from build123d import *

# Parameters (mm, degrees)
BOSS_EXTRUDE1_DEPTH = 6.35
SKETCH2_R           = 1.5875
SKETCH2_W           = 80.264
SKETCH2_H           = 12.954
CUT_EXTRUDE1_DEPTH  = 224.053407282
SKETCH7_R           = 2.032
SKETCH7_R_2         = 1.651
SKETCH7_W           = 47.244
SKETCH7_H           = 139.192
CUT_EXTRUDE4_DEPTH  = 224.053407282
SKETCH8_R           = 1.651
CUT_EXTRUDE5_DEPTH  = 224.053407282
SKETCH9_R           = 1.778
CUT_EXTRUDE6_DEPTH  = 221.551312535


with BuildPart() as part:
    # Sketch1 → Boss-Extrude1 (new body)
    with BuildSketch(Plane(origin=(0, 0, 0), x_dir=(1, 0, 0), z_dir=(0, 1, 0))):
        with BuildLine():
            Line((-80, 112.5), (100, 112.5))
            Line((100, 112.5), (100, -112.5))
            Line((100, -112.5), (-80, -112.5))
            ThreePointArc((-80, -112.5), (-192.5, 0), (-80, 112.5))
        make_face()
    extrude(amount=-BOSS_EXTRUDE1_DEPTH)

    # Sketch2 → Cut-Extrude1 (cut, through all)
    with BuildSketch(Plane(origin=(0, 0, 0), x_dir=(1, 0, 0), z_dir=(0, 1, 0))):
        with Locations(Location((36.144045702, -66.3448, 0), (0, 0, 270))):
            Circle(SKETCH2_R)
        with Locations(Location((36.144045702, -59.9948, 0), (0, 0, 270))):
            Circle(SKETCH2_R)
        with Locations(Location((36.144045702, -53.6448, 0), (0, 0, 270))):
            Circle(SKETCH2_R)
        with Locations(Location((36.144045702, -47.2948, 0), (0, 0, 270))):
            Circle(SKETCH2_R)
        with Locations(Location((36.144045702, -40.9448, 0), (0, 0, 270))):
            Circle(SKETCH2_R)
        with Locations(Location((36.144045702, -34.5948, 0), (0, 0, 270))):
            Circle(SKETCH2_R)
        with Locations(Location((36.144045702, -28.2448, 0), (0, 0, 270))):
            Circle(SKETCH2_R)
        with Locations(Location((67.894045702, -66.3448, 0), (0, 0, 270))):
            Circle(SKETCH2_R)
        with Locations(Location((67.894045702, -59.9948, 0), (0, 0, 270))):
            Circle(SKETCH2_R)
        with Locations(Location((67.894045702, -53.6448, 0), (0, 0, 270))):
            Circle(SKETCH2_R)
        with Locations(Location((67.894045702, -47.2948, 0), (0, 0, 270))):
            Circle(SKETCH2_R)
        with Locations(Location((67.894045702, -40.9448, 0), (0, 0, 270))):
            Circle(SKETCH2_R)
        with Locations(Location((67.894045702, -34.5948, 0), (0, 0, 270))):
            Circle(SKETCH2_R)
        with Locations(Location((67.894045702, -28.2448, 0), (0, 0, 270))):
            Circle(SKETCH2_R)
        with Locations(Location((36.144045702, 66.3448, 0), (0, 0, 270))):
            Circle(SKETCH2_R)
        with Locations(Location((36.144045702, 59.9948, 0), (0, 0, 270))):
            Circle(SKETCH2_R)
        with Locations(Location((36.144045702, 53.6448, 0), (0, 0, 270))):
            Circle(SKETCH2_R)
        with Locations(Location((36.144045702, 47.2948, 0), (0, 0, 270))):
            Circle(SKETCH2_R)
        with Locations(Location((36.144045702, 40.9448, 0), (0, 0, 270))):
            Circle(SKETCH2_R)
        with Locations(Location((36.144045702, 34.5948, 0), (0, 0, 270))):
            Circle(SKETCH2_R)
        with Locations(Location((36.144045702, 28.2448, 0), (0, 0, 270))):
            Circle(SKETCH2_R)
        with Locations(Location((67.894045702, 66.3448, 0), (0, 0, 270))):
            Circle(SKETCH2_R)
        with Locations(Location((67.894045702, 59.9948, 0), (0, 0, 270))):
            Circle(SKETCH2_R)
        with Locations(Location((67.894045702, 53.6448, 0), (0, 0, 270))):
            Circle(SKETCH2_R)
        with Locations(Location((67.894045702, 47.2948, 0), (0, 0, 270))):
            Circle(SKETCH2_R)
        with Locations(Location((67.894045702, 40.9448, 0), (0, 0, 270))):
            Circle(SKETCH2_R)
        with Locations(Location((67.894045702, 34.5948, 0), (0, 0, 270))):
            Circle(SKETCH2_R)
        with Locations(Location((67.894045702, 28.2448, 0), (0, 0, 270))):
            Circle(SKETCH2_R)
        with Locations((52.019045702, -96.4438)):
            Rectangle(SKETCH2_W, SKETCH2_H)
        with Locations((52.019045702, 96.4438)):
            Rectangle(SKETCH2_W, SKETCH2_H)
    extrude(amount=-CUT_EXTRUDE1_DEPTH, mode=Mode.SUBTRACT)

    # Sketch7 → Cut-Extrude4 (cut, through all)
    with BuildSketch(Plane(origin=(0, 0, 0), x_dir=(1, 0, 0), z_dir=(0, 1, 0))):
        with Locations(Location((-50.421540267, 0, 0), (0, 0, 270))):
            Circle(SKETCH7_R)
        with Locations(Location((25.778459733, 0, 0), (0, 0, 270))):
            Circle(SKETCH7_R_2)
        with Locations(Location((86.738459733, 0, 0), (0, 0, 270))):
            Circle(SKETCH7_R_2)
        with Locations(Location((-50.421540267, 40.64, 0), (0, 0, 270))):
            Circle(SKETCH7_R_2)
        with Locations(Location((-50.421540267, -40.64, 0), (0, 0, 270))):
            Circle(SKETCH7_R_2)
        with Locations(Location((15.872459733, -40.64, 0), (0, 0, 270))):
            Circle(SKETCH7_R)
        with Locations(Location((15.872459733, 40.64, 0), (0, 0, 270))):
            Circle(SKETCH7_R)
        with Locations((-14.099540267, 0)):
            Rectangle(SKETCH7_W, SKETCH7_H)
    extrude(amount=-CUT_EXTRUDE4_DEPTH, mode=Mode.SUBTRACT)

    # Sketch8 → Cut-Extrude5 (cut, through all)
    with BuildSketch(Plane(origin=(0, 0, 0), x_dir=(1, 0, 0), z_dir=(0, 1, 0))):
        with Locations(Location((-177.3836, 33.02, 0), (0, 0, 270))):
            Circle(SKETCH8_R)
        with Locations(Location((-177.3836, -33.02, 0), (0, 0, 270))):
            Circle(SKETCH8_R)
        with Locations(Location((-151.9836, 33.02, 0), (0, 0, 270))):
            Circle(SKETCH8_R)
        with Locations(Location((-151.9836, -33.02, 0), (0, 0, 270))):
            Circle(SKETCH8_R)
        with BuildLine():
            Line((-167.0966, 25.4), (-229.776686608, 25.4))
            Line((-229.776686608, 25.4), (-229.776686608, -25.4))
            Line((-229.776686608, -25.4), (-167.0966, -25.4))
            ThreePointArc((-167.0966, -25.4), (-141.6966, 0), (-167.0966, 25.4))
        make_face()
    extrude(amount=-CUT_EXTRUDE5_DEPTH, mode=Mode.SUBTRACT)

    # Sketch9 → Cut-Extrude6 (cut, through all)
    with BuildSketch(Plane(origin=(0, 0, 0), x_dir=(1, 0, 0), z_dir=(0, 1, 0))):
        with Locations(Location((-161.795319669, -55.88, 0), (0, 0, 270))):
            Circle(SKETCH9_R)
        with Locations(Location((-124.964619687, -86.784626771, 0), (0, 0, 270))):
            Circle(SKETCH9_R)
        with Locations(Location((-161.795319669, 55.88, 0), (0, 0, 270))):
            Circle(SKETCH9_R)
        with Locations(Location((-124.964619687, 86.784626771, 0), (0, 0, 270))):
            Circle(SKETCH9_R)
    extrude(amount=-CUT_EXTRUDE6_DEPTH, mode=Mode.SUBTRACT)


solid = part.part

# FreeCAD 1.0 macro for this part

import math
import FreeCAD as App
import Part
import Sketcher
from FreeCAD import Vector
Q = App.Units.Quantity

doc = App.newDocument("Part")
body = doc.addObject("PartDesign::Body", "Body")

# Sketch on XZ plane
sketch1 = body.newObject("Sketcher::SketchObject", "Sketch")
sketch1.AttachmentSupport = (doc.getObject("XZ_Plane"), [""])
sketch1.MapMode = "FlatFace"
sketch1.addGeometry(Part.LineSegment(Vector(100, -112.5, 0), Vector(-80, -112.5, 0)), False)
sketch1.addGeometry(Part.ArcOfCircle(Part.Circle(Vector(-80, 0, 0), Vector(0, 0, 1), 112.5), math.radians(90), math.radians(270)), False)
sketch1.addGeometry(Part.LineSegment(Vector(-80, 112.5, 0), Vector(100, 112.5, 0)), False)
sketch1.addGeometry(Part.LineSegment(Vector(100, 112.5, 0), Vector(100, -112.5, 0)), False)
sketch1.addConstraint(Sketcher.Constraint("Tangent", 0, 2, 1, 2))
sketch1.addConstraint(Sketcher.Constraint("Tangent", 1, 1, 2, 1))
sketch1.addConstraint(Sketcher.Constraint("Coincident", 2, 2, 3, 1))
sketch1.addConstraint(Sketcher.Constraint("Coincident", 3, 2, 0, 1))
sketch1.addConstraint(Sketcher.Constraint("Horizontal", 0))
sketch1.addConstraint(Sketcher.Constraint("Horizontal", 2))
sketch1.addConstraint(Sketcher.Constraint("Vertical", 3))
sketch1.addConstraint(Sketcher.Constraint("PointOnObject", 1, 3, -1))
sketch1.addConstraint(Sketcher.Constraint("Radius", 1, 112.5))
sketch1.addConstraint(Sketcher.Constraint("DistanceX", 0, 2, 0, 1, 180.0))
sketch1.addConstraint(Sketcher.Constraint("DistanceX", 1, 3, -1, 1, 80.0))
pad1 = body.newObject("PartDesign::Pad", "Pad")
pad1.Profile = sketch1
pad1.Length = Q("0.25 in")

# Sketch on XZ plane
sketch2 = body.newObject("Sketcher::SketchObject", "Sketch001")
sketch2.AttachmentSupport = (doc.getObject("XZ_Plane"), [""])
sketch2.MapMode = "FlatFace"
sketch2.addGeometry(Part.Circle(Vector(36.144046, 66.3448, 0), Vector(0, 0, 1), 1.5875), False)
sketch2.addGeometry(Part.Circle(Vector(36.144046, 59.9948, 0), Vector(0, 0, 1), 1.5875), False)
sketch2.addGeometry(Part.Circle(Vector(36.144046, 53.6448, 0), Vector(0, 0, 1), 1.5875), False)
sketch2.addGeometry(Part.Circle(Vector(36.144046, 47.2948, 0), Vector(0, 0, 1), 1.5875), False)
sketch2.addGeometry(Part.Circle(Vector(36.144046, 40.9448, 0), Vector(0, 0, 1), 1.5875), False)
sketch2.addGeometry(Part.Circle(Vector(36.144046, 34.5948, 0), Vector(0, 0, 1), 1.5875), False)
sketch2.addGeometry(Part.Circle(Vector(36.144046, 28.2448, 0), Vector(0, 0, 1), 1.5875), False)
sketch2.addGeometry(Part.Circle(Vector(67.894046, 66.3448, 0), Vector(0, 0, 1), 1.5875), False)
sketch2.addGeometry(Part.Circle(Vector(67.894046, 59.9948, 0), Vector(0, 0, 1), 1.5875), False)
sketch2.addGeometry(Part.Circle(Vector(67.894046, 53.6448, 0), Vector(0, 0, 1), 1.5875), False)
sketch2.addGeometry(Part.Circle(Vector(67.894046, 47.2948, 0), Vector(0, 0, 1), 1.5875), False)
sketch2.addGeometry(Part.Circle(Vector(67.894046, 40.9448, 0), Vector(0, 0, 1), 1.5875), False)
sketch2.addGeometry(Part.Circle(Vector(67.894046, 34.5948, 0), Vector(0, 0, 1), 1.5875), False)
sketch2.addGeometry(Part.Circle(Vector(67.894046, 28.2448, 0), Vector(0, 0, 1), 1.5875), False)
sketch2.addGeometry(Part.Circle(Vector(36.144046, -66.3448, 0), Vector(0, 0, 1), 1.5875), False)
sketch2.addGeometry(Part.Circle(Vector(36.144046, -59.9948, 0), Vector(0, 0, 1), 1.5875), False)
sketch2.addGeometry(Part.Circle(Vector(36.144046, -53.6448, 0), Vector(0, 0, 1), 1.5875), False)
sketch2.addGeometry(Part.Circle(Vector(36.144046, -47.2948, 0), Vector(0, 0, 1), 1.5875), False)
sketch2.addGeometry(Part.Circle(Vector(36.144046, -40.9448, 0), Vector(0, 0, 1), 1.5875), False)
sketch2.addGeometry(Part.Circle(Vector(36.144046, -34.5948, 0), Vector(0, 0, 1), 1.5875), False)
sketch2.addGeometry(Part.Circle(Vector(36.144046, -28.2448, 0), Vector(0, 0, 1), 1.5875), False)
sketch2.addGeometry(Part.Circle(Vector(67.894046, -66.3448, 0), Vector(0, 0, 1), 1.5875), False)
sketch2.addGeometry(Part.Circle(Vector(67.894046, -59.9948, 0), Vector(0, 0, 1), 1.5875), False)
sketch2.addGeometry(Part.Circle(Vector(67.894046, -53.6448, 0), Vector(0, 0, 1), 1.5875), False)
sketch2.addGeometry(Part.Circle(Vector(67.894046, -47.2948, 0), Vector(0, 0, 1), 1.5875), False)
sketch2.addGeometry(Part.Circle(Vector(67.894046, -40.9448, 0), Vector(0, 0, 1), 1.5875), False)
sketch2.addGeometry(Part.Circle(Vector(67.894046, -34.5948, 0), Vector(0, 0, 1), 1.5875), False)
sketch2.addGeometry(Part.Circle(Vector(67.894046, -28.2448, 0), Vector(0, 0, 1), 1.5875), False)
sketch2.addGeometry(Part.LineSegment(Vector(11.887046, 89.9668, 0), Vector(11.887046, 102.9208, 0)), False)
sketch2.addGeometry(Part.LineSegment(Vector(11.887046, 102.9208, 0), Vector(92.151046, 102.9208, 0)), False)
sketch2.addGeometry(Part.LineSegment(Vector(92.151046, 102.9208, 0), Vector(92.151046, 89.9668, 0)), False)
sketch2.addGeometry(Part.LineSegment(Vector(92.151046, 89.9668, 0), Vector(11.887046, 89.9668, 0)), False)
sketch2.addGeometry(Part.LineSegment(Vector(11.887046, -102.9208, 0), Vector(11.887046, -89.9668, 0)), False)
sketch2.addGeometry(Part.LineSegment(Vector(11.887046, -89.9668, 0), Vector(92.151046, -89.9668, 0)), False)
sketch2.addGeometry(Part.LineSegment(Vector(92.151046, -89.9668, 0), Vector(92.151046, -102.9208, 0)), False)
sketch2.addGeometry(Part.LineSegment(Vector(92.151046, -102.9208, 0), Vector(11.887046, -102.9208, 0)), False)
sketch2.addConstraint(Sketcher.Constraint("Coincident", 28, 2, 29, 1))
sketch2.addConstraint(Sketcher.Constraint("Coincident", 29, 2, 30, 1))
sketch2.addConstraint(Sketcher.Constraint("Coincident", 30, 2, 31, 1))
sketch2.addConstraint(Sketcher.Constraint("Coincident", 31, 2, 28, 1))
sketch2.addConstraint(Sketcher.Constraint("Coincident", 32, 2, 33, 1))
sketch2.addConstraint(Sketcher.Constraint("Coincident", 33, 2, 34, 1))
sketch2.addConstraint(Sketcher.Constraint("Coincident", 34, 2, 35, 1))
sketch2.addConstraint(Sketcher.Constraint("Coincident", 35, 2, 32, 1))
sketch2.addConstraint(Sketcher.Constraint("Vertical", 28))
sketch2.addConstraint(Sketcher.Constraint("Horizontal", 29))
sketch2.addConstraint(Sketcher.Constraint("Vertical", 30))
sketch2.addConstraint(Sketcher.Constraint("Horizontal", 31))
sketch2.addConstraint(Sketcher.Constraint("Vertical", 32))
sketch2.addConstraint(Sketcher.Constraint("Horizontal", 33))
sketch2.addConstraint(Sketcher.Constraint("Vertical", 34))
sketch2.addConstraint(Sketcher.Constraint("Horizontal", 35))
sketch2.addConstraint(Sketcher.Constraint("Equal", 0, 1))
sketch2.addConstraint(Sketcher.Constraint("Equal", 1, 2))
sketch2.addConstraint(Sketcher.Constraint("Equal", 2, 3))
sketch2.addConstraint(Sketcher.Constraint("Equal", 3, 4))
sketch2.addConstraint(Sketcher.Constraint("Equal", 4, 5))
sketch2.addConstraint(Sketcher.Constraint("Equal", 5, 6))
sketch2.addConstraint(Sketcher.Constraint("Equal", 6, 7))
sketch2.addConstraint(Sketcher.Constraint("Equal", 7, 8))
sketch2.addConstraint(Sketcher.Constraint("Equal", 8, 9))
sketch2.addConstraint(Sketcher.Constraint("Equal", 9, 10))
sketch2.addConstraint(Sketcher.Constraint("Equal", 10, 11))
sketch2.addConstraint(Sketcher.Constraint("Equal", 11, 12))
sketch2.addConstraint(Sketcher.Constraint("Equal", 12, 13))
sketch2.addConstraint(Sketcher.Constraint("Equal", 13, 14))
sketch2.addConstraint(Sketcher.Constraint("Equal", 14, 15))
sketch2.addConstraint(Sketcher.Constraint("Equal", 15, 16))
sketch2.addConstraint(Sketcher.Constraint("Equal", 16, 17))
sketch2.addConstraint(Sketcher.Constraint("Equal", 17, 18))
sketch2.addConstraint(Sketcher.Constraint("Equal", 18, 19))
sketch2.addConstraint(Sketcher.Constraint("Equal", 19, 20))
sketch2.addConstraint(Sketcher.Constraint("Equal", 20, 21))
sketch2.addConstraint(Sketcher.Constraint("Equal", 21, 22))
sketch2.addConstraint(Sketcher.Constraint("Equal", 22, 23))
sketch2.addConstraint(Sketcher.Constraint("Equal", 23, 24))
sketch2.addConstraint(Sketcher.Constraint("Equal", 24, 25))
sketch2.addConstraint(Sketcher.Constraint("Equal", 25, 26))
sketch2.addConstraint(Sketcher.Constraint("Equal", 26, 27))
sketch2.addConstraint(Sketcher.Constraint("Symmetric", 0, 3, 14, 3, -1))
sketch2.addConstraint(Sketcher.Constraint("Symmetric", 1, 3, 15, 3, -1))
sketch2.addConstraint(Sketcher.Constraint("Symmetric", 2, 3, 16, 3, -1))
sketch2.addConstraint(Sketcher.Constraint("Symmetric", 3, 3, 17, 3, -1))
sketch2.addConstraint(Sketcher.Constraint("Symmetric", 4, 3, 18, 3, -1))
sketch2.addConstraint(Sketcher.Constraint("Symmetric", 5, 3, 19, 3, -1))
sketch2.addConstraint(Sketcher.Constraint("Symmetric", 6, 3, 20, 3, -1))
sketch2.addConstraint(Sketcher.Constraint("Symmetric", 7, 3, 21, 3, -1))
sketch2.addConstraint(Sketcher.Constraint("Symmetric", 8, 3, 22, 3, -1))
sketch2.addConstraint(Sketcher.Constraint("Symmetric", 9, 3, 23, 3, -1))
sketch2.addConstraint(Sketcher.Constraint("Symmetric", 10, 3, 24, 3, -1))
sketch2.addConstraint(Sketcher.Constraint("Symmetric", 11, 3, 25, 3, -1))
sketch2.addConstraint(Sketcher.Constraint("Symmetric", 12, 3, 26, 3, -1))
sketch2.addConstraint(Sketcher.Constraint("Symmetric", 13, 3, 27, 3, -1))
sketch2.addConstraint(Sketcher.Constraint("Symmetric", 31, 2, 32, 2, -1))
sketch2.addConstraint(Sketcher.Constraint("Symmetric", 29, 2, 34, 2, -1))
sketch2.addConstraint(Sketcher.Constraint("Horizontal", 0, 3, 7, 3))
sketch2.addConstraint(Sketcher.Constraint("Horizontal", 1, 3, 8, 3))
sketch2.addConstraint(Sketcher.Constraint("Horizontal", 2, 3, 9, 3))
sketch2.addConstraint(Sketcher.Constraint("Horizontal", 3, 3, 10, 3))
sketch2.addConstraint(Sketcher.Constraint("Horizontal", 4, 3, 11, 3))
sketch2.addConstraint(Sketcher.Constraint("Horizontal", 5, 3, 12, 3))
sketch2.addConstraint(Sketcher.Constraint("Horizontal", 6, 3, 13, 3))
sketch2.addConstraint(Sketcher.Constraint("Vertical", 0, 3, 1, 3))
sketch2.addConstraint(Sketcher.Constraint("Vertical", 1, 3, 2, 3))
sketch2.addConstraint(Sketcher.Constraint("Vertical", 2, 3, 3, 3))
sketch2.addConstraint(Sketcher.Constraint("Vertical", 3, 3, 4, 3))
sketch2.addConstraint(Sketcher.Constraint("Vertical", 4, 3, 5, 3))
sketch2.addConstraint(Sketcher.Constraint("Vertical", 5, 3, 6, 3))
sketch2.addConstraint(Sketcher.Constraint("Vertical", 7, 3, 8, 3))
sketch2.addConstraint(Sketcher.Constraint("Vertical", 8, 3, 9, 3))
sketch2.addConstraint(Sketcher.Constraint("Vertical", 9, 3, 10, 3))
sketch2.addConstraint(Sketcher.Constraint("Vertical", 10, 3, 11, 3))
sketch2.addConstraint(Sketcher.Constraint("Vertical", 11, 3, 12, 3))
sketch2.addConstraint(Sketcher.Constraint("Vertical", 12, 3, 13, 3))
sketch2.addConstraint(Sketcher.Constraint("Diameter", 0, Q("0.125 in")))
sketch2.addConstraint(Sketcher.Constraint("DistanceY", 4, 3, 0, 3, Q("1 in")))
sketch2.addConstraint(Sketcher.Constraint("DistanceY", 5, 3, 1, 3, Q("1 in")))
sketch2.addConstraint(Sketcher.Constraint("DistanceY", 6, 3, 2, 3, Q("1 in")))
sketch2.addConstraint(Sketcher.Constraint("DistanceX", 29, 1, 29, 2, Q("3.16 in")))
sketch2.addConstraint(Sketcher.Constraint("DistanceY", 28, 1, 28, 2, Q("0.51 in")))
sketch2.addConstraint(Sketcher.Constraint("DistanceY", 2, 3, 0, 3, Q("0.5 in")))
sketch2.addConstraint(Sketcher.Constraint("DistanceY", 3, 3, 1, 3, Q("0.5 in")))
sketch2.addConstraint(Sketcher.Constraint("DistanceY", 1, 3, 0, 3, Q("0.25 in")))
sketch2.addConstraint(Sketcher.Constraint("DistanceX", 0, 3, 7, 3, Q("1.25 in")))
sketch2.addConstraint(Sketcher.Constraint("DistanceY", 0, 3, 28, 2, Q("1.44 in")))
sketch2.addConstraint(Sketcher.Constraint("DistanceY", -1, 1, 0, 3, Q("2.612 in")))
sketch2.addConstraint(Sketcher.Constraint("DistanceX", 28, 2, 0, 3, Q("0.955 in")))
sketch2.addConstraint(Sketcher.Constraint("DistanceX", -1, 1, 0, 3, 36.144046))
pocket1 = body.newObject("PartDesign::Pocket", "Pocket")
pocket1.Profile = sketch2
pocket1.Type = "ThroughAll"
pocket1.Reversed = True

# Sketch on XZ plane
sketch3 = body.newObject("Sketcher::SketchObject", "Sketch002")
sketch3.AttachmentSupport = (doc.getObject("XZ_Plane"), [""])
sketch3.MapMode = "FlatFace"
sketch3.addGeometry(Part.Circle(Vector(-50.42154, 0, 0), Vector(0, 0, 1), 2.032), False)
sketch3.addGeometry(Part.Circle(Vector(25.77846, 0, 0), Vector(0, 0, 1), 1.651), False)
sketch3.addGeometry(Part.Circle(Vector(86.73846, 0, 0), Vector(0, 0, 1), 1.651), False)
sketch3.addGeometry(Part.Circle(Vector(-50.42154, -40.64, 0), Vector(0, 0, 1), 1.651), False)
sketch3.addGeometry(Part.Circle(Vector(-50.42154, 40.64, 0), Vector(0, 0, 1), 1.651), False)
sketch3.addGeometry(Part.Circle(Vector(15.87246, 40.64, 0), Vector(0, 0, 1), 2.032), False)
sketch3.addGeometry(Part.Circle(Vector(15.87246, -40.64, 0), Vector(0, 0, 1), 2.032), False)
sketch3.addGeometry(Part.LineSegment(Vector(-37.72154, -69.596, 0), Vector(-37.72154, 69.596, 0)), False)
sketch3.addGeometry(Part.LineSegment(Vector(-37.72154, 69.596, 0), Vector(9.52246, 69.596, 0)), False)
sketch3.addGeometry(Part.LineSegment(Vector(9.52246, 69.596, 0), Vector(9.52246, -69.596, 0)), False)
sketch3.addGeometry(Part.LineSegment(Vector(9.52246, -69.596, 0), Vector(-37.72154, -69.596, 0)), False)
sketch3.addConstraint(Sketcher.Constraint("Coincident", 7, 2, 8, 1))
sketch3.addConstraint(Sketcher.Constraint("Coincident", 8, 2, 9, 1))
sketch3.addConstraint(Sketcher.Constraint("Coincident", 9, 2, 10, 1))
sketch3.addConstraint(Sketcher.Constraint("Coincident", 10, 2, 7, 1))
sketch3.addConstraint(Sketcher.Constraint("Vertical", 7))
sketch3.addConstraint(Sketcher.Constraint("Horizontal", 8))
sketch3.addConstraint(Sketcher.Constraint("Vertical", 9))
sketch3.addConstraint(Sketcher.Constraint("Horizontal", 10))
sketch3.addConstraint(Sketcher.Constraint("Equal", 1, 2))
sketch3.addConstraint(Sketcher.Constraint("Equal", 2, 3))
sketch3.addConstraint(Sketcher.Constraint("Equal", 3, 4))
sketch3.addConstraint(Sketcher.Constraint("Equal", 0, 5))
sketch3.addConstraint(Sketcher.Constraint("Equal", 5, 6))
sketch3.addConstraint(Sketcher.Constraint("Symmetric", 3, 3, 4, 3, -1))
sketch3.addConstraint(Sketcher.Constraint("Symmetric", 5, 3, 6, 3, -1))
sketch3.addConstraint(Sketcher.Constraint("PointOnObject", 0, 3, -1))
sketch3.addConstraint(Sketcher.Constraint("PointOnObject", 1, 3, -1))
sketch3.addConstraint(Sketcher.Constraint("PointOnObject", 2, 3, -1))
sketch3.addConstraint(Sketcher.Constraint("Horizontal", 4, 3, 5, 3))
sketch3.addConstraint(Sketcher.Constraint("Vertical", 0, 3, 3, 3))
sketch3.addConstraint(Sketcher.Constraint("Diameter", 0, Q("0.16 in")))
sketch3.addConstraint(Sketcher.Constraint("Diameter", 1, Q("0.13 in")))
sketch3.addConstraint(Sketcher.Constraint("DistanceX", 0, 3, 1, 3, Q("3 in")))
sketch3.addConstraint(Sketcher.Constraint("DistanceX", 8, 1, 8, 2, Q("1.86 in")))
sketch3.addConstraint(Sketcher.Constraint("DistanceY", 7, 1, 7, 2, Q("5.48 in")))
sketch3.addConstraint(Sketcher.Constraint("DistanceY", 3, 3, -1, 1, Q("1.6 in")))
sketch3.addConstraint(Sketcher.Constraint("DistanceX", 1, 3, 2, 3, Q("2.4 in")))
sketch3.addConstraint(Sketcher.Constraint("DistanceX", 4, 3, 7, 2, Q("0.5 in")))
sketch3.addConstraint(Sketcher.Constraint("DistanceY", -1, 1, 7, 2, Q("2.74 in")))
sketch3.addConstraint(Sketcher.Constraint("DistanceX", 5, 3, 1, 3, Q("0.39 in")))
sketch3.addConstraint(Sketcher.Constraint("DistanceX", 0, 3, -1, 1, Q("1.9851 in")))
pocket2 = body.newObject("PartDesign::Pocket", "Pocket001")
pocket2.Profile = sketch3
pocket2.Type = "ThroughAll"
pocket2.Reversed = True

# Sketch on XZ plane
sketch4 = body.newObject("Sketcher::SketchObject", "Sketch003")
sketch4.AttachmentSupport = (doc.getObject("XZ_Plane"), [""])
sketch4.MapMode = "FlatFace"
sketch4.addGeometry(Part.Circle(Vector(-177.3836, -33.02, 0), Vector(0, 0, 1), 1.651), False)
sketch4.addGeometry(Part.Circle(Vector(-177.3836, 33.02, 0), Vector(0, 0, 1), 1.651), False)
sketch4.addGeometry(Part.Circle(Vector(-151.9836, -33.02, 0), Vector(0, 0, 1), 1.651), False)
sketch4.addGeometry(Part.Circle(Vector(-151.9836, 33.02, 0), Vector(0, 0, 1), 1.651), False)
sketch4.addGeometry(Part.LineSegment(Vector(-167.0966, -25.4, 0), Vector(-229.776687, -25.4, 0)), False)
sketch4.addGeometry(Part.LineSegment(Vector(-229.776687, -25.4, 0), Vector(-229.776687, 25.4, 0)), False)
sketch4.addGeometry(Part.LineSegment(Vector(-229.776687, 25.4, 0), Vector(-167.0966, 25.4, 0)), False)
sketch4.addGeometry(Part.ArcOfCircle(Part.Circle(Vector(-167.0966, 0, 0), Vector(0, 0, 1), 25.4), math.radians(-90), math.radians(90)), False)
sketch4.addConstraint(Sketcher.Constraint("Coincident", 4, 2, 5, 1))
sketch4.addConstraint(Sketcher.Constraint("Coincident", 5, 2, 6, 1))
sketch4.addConstraint(Sketcher.Constraint("Tangent", 6, 2, 7, 2))
sketch4.addConstraint(Sketcher.Constraint("Tangent", 7, 1, 4, 1))
sketch4.addConstraint(Sketcher.Constraint("Horizontal", 4))
sketch4.addConstraint(Sketcher.Constraint("Vertical", 5))
sketch4.addConstraint(Sketcher.Constraint("Horizontal", 6))
sketch4.addConstraint(Sketcher.Constraint("Equal", 0, 1))
sketch4.addConstraint(Sketcher.Constraint("Equal", 1, 2))
sketch4.addConstraint(Sketcher.Constraint("Equal", 2, 3))
sketch4.addConstraint(Sketcher.Constraint("Symmetric", 0, 3, 1, 3, -1))
sketch4.addConstraint(Sketcher.Constraint("Symmetric", 2, 3, 3, 3, -1))
sketch4.addConstraint(Sketcher.Constraint("PointOnObject", 7, 3, -1))
sketch4.addConstraint(Sketcher.Constraint("Horizontal", 0, 3, 2, 3))
sketch4.addConstraint(Sketcher.Constraint("Radius", 7, Q("1 in")))
sketch4.addConstraint(Sketcher.Constraint("Diameter", 0, Q("0.13 in")))
sketch4.addConstraint(Sketcher.Constraint("DistanceX", 0, 3, 2, 3, Q("1 in")))
sketch4.addConstraint(Sketcher.Constraint("DistanceY", 0, 3, -1, 1, Q("1.3 in")))
sketch4.addConstraint(Sketcher.Constraint("DistanceX", 0, 3, 7, 3, Q("0.405 in")))
sketch4.addConstraint(Sketcher.Constraint("DistanceX", 0, 3, -1, 1, 177.3836))
sketch4.addConstraint(Sketcher.Constraint("DistanceX", 4, 2, 4, 1, 62.680087))
pocket3 = body.newObject("PartDesign::Pocket", "Pocket002")
pocket3.Profile = sketch4
pocket3.Type = "ThroughAll"
pocket3.Reversed = True

# Sketch on XZ plane
sketch5 = body.newObject("Sketcher::SketchObject", "Sketch004")
sketch5.AttachmentSupport = (doc.getObject("XZ_Plane"), [""])
sketch5.MapMode = "FlatFace"
sketch5.addGeometry(Part.Circle(Vector(-161.79532, 55.88, 0), Vector(0, 0, 1), 1.778), False)
sketch5.addGeometry(Part.Circle(Vector(-124.96462, 86.784627, 0), Vector(0, 0, 1), 1.778), False)
sketch5.addGeometry(Part.Circle(Vector(-161.79532, -55.88, 0), Vector(0, 0, 1), 1.778), False)
sketch5.addGeometry(Part.Circle(Vector(-124.96462, -86.784627, 0), Vector(0, 0, 1), 1.778), False)
sketch5.addConstraint(Sketcher.Constraint("Equal", 0, 1))
sketch5.addConstraint(Sketcher.Constraint("Equal", 1, 2))
sketch5.addConstraint(Sketcher.Constraint("Equal", 2, 3))
sketch5.addConstraint(Sketcher.Constraint("Symmetric", 0, 3, 2, 3, -1))
sketch5.addConstraint(Sketcher.Constraint("Symmetric", 1, 3, 3, 3, -1))
sketch5.addConstraint(Sketcher.Constraint("Diameter", 0, Q("0.14 in")))
sketch5.addConstraint(Sketcher.Constraint("DistanceY", -1, 1, 0, 3, Q("2.2 in")))
sketch5.addConstraint(Sketcher.Constraint("DistanceX", 0, 3, 1, 3, 36.8307))
sketch5.addConstraint(Sketcher.Constraint("DistanceX", 0, 3, -1, 1, 161.79532))
sketch5.addConstraint(Sketcher.Constraint("DistanceY", -1, 1, 1, 3, 86.784627))
pocket4 = body.newObject("PartDesign::Pocket", "Pocket003")
pocket4.Profile = sketch5
pocket4.Type = "ThroughAll"
pocket4.Reversed = True

doc.recompute()
